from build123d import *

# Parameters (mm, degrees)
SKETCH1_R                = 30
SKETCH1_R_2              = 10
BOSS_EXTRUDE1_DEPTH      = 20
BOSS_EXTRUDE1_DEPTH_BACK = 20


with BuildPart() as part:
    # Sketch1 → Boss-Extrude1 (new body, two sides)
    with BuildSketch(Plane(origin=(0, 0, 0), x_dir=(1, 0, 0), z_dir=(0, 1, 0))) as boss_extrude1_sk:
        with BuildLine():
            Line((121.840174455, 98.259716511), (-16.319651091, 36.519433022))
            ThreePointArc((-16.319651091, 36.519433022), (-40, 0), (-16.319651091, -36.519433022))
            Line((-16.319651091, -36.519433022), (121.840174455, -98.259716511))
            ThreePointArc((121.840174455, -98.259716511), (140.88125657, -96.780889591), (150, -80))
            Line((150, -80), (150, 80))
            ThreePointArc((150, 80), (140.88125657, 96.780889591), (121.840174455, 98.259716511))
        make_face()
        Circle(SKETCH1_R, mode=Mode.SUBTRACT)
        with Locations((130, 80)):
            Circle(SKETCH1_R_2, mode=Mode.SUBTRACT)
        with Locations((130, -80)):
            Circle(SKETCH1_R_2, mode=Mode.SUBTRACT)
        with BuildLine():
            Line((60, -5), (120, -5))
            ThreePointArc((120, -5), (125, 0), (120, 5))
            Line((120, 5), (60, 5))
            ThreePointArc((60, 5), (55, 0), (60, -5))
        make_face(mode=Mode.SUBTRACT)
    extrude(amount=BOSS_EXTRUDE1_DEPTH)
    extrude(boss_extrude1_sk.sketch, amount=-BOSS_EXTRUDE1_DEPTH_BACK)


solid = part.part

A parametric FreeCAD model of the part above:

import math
import FreeCAD as App
import Part
import Sketcher

V = App.Vector

doc = App.newDocument("Part")
body = doc.addObject("PartDesign::Body", "Body")

# Sketch on XZ plane
sketch1 = body.newObject("Sketcher::SketchObject", "Sketch")
sketch1.AttachmentSupport = (doc.getObject("XZ_Plane"), [""])
sketch1.MapMode = "FlatFace"
sketch1.addGeometry([
    Part.LineSegment(V(122, -98, 0), V(-16, -37, 0)),  # 0
    Part.ArcOfCircle(Part.Circle(V(0, 0, 0), V(0, 0, 1), 40), math.radians(114), math.radians(246)),  # 1
    Part.LineSegment(V(-16, 37, 0), V(122, 98, 0)),  # 2
    Part.ArcOfCircle(Part.Circle(V(130, 80, 0), V(0, 0, 1), 20), math.radians(0), math.radians(114)),  # 3
    Part.LineSegment(V(150, 80, 0), V(150, -80, 0)),  # 4
    Part.ArcOfCircle(Part.Circle(V(130, -80, 0), V(0, 0, 1), 20), math.radians(-114), math.radians(0)),  # 5
    Part.Circle(V(130, 80, 0), V(0, 0, 1), 10),  # 6
    Part.Circle(V(0, 0, 0), V(0, 0, 1), 30),  # 7
    Part.LineSegment(V(120, 5, 0), V(60, 5, 0)),  # 8
    Part.ArcOfCircle(Part.Circle(V(60, 0, 0), V(0, 0, 1), 5), math.radians(90), math.radians(270)),  # 9
    Part.LineSegment(V(60, -5, 0), V(120, -5, 0)),  # 10
    Part.ArcOfCircle(Part.Circle(V(120, 0, 0), V(0, 0, 1), 5), math.radians(-90), math.radians(90)),  # 11
    Part.Circle(V(130, -80, 0), V(0, 0, 1), 10),  # 12
], False)
sketch1.addConstraint([
    Sketcher.Constraint("Tangent", 0, 2, 1, 2),
    Sketcher.Constraint("Tangent", 1, 1, 2, 1),
    Sketcher.Constraint("Tangent", 2, 2, 3, 2),
    Sketcher.Constraint("Tangent", 3, 1, 4, 1),
    Sketcher.Constraint("Tangent", 4, 2, 5, 2),
    Sketcher.Constraint("Tangent", 5, 1, 0, 1),
    Sketcher.Constraint("Tangent", 8, 2, 9, 1),
    Sketcher.Constraint("Tangent", 9, 2, 10, 1),
    Sketcher.Constraint("Tangent", 10, 2, 11, 1),
    Sketcher.Constraint("Tangent", 11, 2, 8, 1),
    Sketcher.Constraint("Vertical", 4),
    Sketcher.Constraint("Horizontal", 8),
    Sketcher.Constraint("Horizontal", 10),
    Sketcher.Constraint("Coincident", 1, 3, -1, 1),
    Sketcher.Constraint("Coincident", 7, 3, -1, 1),
    Sketcher.Constraint("Coincident", 6, 3, 3, 3),
    Sketcher.Constraint("Coincident", 12, 3, 5, 3),
    Sketcher.Constraint("Equal", 3, 5),
    Sketcher.Constraint("Equal", 6, 12),
    Sketcher.Constraint("PointOnObject", 9, 3, -1),
    Sketcher.Constraint("Vertical", 0, 2, 1, 1),
    Sketcher.Constraint("Diameter", 6, 20.0),
    Sketcher.Constraint("Diameter", 7, 60.0),
    Sketcher.Constraint("Radius", 1, 40.0),
    Sketcher.Constraint("Radius", 3, 20.0),
    Sketcher.Constraint("Radius", 9, 5.0),
    Sketcher.Constraint("DistanceX", 8, 2, 8, 1, 60.0),
    Sketcher.Constraint("DistanceY", 4, 2, 4, 1, 160.0),
    Sketcher.Constraint("DistanceX", -1, 1, 3, 3, 130.0),
    Sketcher.Constraint("DistanceX", -1, 1, 9, 3, 60.0),
])
pad1 = body.newObject("PartDesign::Pad", "Pad")
pad1.Profile = sketch1
pad1.Type = "TwoLengths"
pad1.Length = 20
pad1.Length2 = 20
pad1.Reversed = True

doc.recompute()
